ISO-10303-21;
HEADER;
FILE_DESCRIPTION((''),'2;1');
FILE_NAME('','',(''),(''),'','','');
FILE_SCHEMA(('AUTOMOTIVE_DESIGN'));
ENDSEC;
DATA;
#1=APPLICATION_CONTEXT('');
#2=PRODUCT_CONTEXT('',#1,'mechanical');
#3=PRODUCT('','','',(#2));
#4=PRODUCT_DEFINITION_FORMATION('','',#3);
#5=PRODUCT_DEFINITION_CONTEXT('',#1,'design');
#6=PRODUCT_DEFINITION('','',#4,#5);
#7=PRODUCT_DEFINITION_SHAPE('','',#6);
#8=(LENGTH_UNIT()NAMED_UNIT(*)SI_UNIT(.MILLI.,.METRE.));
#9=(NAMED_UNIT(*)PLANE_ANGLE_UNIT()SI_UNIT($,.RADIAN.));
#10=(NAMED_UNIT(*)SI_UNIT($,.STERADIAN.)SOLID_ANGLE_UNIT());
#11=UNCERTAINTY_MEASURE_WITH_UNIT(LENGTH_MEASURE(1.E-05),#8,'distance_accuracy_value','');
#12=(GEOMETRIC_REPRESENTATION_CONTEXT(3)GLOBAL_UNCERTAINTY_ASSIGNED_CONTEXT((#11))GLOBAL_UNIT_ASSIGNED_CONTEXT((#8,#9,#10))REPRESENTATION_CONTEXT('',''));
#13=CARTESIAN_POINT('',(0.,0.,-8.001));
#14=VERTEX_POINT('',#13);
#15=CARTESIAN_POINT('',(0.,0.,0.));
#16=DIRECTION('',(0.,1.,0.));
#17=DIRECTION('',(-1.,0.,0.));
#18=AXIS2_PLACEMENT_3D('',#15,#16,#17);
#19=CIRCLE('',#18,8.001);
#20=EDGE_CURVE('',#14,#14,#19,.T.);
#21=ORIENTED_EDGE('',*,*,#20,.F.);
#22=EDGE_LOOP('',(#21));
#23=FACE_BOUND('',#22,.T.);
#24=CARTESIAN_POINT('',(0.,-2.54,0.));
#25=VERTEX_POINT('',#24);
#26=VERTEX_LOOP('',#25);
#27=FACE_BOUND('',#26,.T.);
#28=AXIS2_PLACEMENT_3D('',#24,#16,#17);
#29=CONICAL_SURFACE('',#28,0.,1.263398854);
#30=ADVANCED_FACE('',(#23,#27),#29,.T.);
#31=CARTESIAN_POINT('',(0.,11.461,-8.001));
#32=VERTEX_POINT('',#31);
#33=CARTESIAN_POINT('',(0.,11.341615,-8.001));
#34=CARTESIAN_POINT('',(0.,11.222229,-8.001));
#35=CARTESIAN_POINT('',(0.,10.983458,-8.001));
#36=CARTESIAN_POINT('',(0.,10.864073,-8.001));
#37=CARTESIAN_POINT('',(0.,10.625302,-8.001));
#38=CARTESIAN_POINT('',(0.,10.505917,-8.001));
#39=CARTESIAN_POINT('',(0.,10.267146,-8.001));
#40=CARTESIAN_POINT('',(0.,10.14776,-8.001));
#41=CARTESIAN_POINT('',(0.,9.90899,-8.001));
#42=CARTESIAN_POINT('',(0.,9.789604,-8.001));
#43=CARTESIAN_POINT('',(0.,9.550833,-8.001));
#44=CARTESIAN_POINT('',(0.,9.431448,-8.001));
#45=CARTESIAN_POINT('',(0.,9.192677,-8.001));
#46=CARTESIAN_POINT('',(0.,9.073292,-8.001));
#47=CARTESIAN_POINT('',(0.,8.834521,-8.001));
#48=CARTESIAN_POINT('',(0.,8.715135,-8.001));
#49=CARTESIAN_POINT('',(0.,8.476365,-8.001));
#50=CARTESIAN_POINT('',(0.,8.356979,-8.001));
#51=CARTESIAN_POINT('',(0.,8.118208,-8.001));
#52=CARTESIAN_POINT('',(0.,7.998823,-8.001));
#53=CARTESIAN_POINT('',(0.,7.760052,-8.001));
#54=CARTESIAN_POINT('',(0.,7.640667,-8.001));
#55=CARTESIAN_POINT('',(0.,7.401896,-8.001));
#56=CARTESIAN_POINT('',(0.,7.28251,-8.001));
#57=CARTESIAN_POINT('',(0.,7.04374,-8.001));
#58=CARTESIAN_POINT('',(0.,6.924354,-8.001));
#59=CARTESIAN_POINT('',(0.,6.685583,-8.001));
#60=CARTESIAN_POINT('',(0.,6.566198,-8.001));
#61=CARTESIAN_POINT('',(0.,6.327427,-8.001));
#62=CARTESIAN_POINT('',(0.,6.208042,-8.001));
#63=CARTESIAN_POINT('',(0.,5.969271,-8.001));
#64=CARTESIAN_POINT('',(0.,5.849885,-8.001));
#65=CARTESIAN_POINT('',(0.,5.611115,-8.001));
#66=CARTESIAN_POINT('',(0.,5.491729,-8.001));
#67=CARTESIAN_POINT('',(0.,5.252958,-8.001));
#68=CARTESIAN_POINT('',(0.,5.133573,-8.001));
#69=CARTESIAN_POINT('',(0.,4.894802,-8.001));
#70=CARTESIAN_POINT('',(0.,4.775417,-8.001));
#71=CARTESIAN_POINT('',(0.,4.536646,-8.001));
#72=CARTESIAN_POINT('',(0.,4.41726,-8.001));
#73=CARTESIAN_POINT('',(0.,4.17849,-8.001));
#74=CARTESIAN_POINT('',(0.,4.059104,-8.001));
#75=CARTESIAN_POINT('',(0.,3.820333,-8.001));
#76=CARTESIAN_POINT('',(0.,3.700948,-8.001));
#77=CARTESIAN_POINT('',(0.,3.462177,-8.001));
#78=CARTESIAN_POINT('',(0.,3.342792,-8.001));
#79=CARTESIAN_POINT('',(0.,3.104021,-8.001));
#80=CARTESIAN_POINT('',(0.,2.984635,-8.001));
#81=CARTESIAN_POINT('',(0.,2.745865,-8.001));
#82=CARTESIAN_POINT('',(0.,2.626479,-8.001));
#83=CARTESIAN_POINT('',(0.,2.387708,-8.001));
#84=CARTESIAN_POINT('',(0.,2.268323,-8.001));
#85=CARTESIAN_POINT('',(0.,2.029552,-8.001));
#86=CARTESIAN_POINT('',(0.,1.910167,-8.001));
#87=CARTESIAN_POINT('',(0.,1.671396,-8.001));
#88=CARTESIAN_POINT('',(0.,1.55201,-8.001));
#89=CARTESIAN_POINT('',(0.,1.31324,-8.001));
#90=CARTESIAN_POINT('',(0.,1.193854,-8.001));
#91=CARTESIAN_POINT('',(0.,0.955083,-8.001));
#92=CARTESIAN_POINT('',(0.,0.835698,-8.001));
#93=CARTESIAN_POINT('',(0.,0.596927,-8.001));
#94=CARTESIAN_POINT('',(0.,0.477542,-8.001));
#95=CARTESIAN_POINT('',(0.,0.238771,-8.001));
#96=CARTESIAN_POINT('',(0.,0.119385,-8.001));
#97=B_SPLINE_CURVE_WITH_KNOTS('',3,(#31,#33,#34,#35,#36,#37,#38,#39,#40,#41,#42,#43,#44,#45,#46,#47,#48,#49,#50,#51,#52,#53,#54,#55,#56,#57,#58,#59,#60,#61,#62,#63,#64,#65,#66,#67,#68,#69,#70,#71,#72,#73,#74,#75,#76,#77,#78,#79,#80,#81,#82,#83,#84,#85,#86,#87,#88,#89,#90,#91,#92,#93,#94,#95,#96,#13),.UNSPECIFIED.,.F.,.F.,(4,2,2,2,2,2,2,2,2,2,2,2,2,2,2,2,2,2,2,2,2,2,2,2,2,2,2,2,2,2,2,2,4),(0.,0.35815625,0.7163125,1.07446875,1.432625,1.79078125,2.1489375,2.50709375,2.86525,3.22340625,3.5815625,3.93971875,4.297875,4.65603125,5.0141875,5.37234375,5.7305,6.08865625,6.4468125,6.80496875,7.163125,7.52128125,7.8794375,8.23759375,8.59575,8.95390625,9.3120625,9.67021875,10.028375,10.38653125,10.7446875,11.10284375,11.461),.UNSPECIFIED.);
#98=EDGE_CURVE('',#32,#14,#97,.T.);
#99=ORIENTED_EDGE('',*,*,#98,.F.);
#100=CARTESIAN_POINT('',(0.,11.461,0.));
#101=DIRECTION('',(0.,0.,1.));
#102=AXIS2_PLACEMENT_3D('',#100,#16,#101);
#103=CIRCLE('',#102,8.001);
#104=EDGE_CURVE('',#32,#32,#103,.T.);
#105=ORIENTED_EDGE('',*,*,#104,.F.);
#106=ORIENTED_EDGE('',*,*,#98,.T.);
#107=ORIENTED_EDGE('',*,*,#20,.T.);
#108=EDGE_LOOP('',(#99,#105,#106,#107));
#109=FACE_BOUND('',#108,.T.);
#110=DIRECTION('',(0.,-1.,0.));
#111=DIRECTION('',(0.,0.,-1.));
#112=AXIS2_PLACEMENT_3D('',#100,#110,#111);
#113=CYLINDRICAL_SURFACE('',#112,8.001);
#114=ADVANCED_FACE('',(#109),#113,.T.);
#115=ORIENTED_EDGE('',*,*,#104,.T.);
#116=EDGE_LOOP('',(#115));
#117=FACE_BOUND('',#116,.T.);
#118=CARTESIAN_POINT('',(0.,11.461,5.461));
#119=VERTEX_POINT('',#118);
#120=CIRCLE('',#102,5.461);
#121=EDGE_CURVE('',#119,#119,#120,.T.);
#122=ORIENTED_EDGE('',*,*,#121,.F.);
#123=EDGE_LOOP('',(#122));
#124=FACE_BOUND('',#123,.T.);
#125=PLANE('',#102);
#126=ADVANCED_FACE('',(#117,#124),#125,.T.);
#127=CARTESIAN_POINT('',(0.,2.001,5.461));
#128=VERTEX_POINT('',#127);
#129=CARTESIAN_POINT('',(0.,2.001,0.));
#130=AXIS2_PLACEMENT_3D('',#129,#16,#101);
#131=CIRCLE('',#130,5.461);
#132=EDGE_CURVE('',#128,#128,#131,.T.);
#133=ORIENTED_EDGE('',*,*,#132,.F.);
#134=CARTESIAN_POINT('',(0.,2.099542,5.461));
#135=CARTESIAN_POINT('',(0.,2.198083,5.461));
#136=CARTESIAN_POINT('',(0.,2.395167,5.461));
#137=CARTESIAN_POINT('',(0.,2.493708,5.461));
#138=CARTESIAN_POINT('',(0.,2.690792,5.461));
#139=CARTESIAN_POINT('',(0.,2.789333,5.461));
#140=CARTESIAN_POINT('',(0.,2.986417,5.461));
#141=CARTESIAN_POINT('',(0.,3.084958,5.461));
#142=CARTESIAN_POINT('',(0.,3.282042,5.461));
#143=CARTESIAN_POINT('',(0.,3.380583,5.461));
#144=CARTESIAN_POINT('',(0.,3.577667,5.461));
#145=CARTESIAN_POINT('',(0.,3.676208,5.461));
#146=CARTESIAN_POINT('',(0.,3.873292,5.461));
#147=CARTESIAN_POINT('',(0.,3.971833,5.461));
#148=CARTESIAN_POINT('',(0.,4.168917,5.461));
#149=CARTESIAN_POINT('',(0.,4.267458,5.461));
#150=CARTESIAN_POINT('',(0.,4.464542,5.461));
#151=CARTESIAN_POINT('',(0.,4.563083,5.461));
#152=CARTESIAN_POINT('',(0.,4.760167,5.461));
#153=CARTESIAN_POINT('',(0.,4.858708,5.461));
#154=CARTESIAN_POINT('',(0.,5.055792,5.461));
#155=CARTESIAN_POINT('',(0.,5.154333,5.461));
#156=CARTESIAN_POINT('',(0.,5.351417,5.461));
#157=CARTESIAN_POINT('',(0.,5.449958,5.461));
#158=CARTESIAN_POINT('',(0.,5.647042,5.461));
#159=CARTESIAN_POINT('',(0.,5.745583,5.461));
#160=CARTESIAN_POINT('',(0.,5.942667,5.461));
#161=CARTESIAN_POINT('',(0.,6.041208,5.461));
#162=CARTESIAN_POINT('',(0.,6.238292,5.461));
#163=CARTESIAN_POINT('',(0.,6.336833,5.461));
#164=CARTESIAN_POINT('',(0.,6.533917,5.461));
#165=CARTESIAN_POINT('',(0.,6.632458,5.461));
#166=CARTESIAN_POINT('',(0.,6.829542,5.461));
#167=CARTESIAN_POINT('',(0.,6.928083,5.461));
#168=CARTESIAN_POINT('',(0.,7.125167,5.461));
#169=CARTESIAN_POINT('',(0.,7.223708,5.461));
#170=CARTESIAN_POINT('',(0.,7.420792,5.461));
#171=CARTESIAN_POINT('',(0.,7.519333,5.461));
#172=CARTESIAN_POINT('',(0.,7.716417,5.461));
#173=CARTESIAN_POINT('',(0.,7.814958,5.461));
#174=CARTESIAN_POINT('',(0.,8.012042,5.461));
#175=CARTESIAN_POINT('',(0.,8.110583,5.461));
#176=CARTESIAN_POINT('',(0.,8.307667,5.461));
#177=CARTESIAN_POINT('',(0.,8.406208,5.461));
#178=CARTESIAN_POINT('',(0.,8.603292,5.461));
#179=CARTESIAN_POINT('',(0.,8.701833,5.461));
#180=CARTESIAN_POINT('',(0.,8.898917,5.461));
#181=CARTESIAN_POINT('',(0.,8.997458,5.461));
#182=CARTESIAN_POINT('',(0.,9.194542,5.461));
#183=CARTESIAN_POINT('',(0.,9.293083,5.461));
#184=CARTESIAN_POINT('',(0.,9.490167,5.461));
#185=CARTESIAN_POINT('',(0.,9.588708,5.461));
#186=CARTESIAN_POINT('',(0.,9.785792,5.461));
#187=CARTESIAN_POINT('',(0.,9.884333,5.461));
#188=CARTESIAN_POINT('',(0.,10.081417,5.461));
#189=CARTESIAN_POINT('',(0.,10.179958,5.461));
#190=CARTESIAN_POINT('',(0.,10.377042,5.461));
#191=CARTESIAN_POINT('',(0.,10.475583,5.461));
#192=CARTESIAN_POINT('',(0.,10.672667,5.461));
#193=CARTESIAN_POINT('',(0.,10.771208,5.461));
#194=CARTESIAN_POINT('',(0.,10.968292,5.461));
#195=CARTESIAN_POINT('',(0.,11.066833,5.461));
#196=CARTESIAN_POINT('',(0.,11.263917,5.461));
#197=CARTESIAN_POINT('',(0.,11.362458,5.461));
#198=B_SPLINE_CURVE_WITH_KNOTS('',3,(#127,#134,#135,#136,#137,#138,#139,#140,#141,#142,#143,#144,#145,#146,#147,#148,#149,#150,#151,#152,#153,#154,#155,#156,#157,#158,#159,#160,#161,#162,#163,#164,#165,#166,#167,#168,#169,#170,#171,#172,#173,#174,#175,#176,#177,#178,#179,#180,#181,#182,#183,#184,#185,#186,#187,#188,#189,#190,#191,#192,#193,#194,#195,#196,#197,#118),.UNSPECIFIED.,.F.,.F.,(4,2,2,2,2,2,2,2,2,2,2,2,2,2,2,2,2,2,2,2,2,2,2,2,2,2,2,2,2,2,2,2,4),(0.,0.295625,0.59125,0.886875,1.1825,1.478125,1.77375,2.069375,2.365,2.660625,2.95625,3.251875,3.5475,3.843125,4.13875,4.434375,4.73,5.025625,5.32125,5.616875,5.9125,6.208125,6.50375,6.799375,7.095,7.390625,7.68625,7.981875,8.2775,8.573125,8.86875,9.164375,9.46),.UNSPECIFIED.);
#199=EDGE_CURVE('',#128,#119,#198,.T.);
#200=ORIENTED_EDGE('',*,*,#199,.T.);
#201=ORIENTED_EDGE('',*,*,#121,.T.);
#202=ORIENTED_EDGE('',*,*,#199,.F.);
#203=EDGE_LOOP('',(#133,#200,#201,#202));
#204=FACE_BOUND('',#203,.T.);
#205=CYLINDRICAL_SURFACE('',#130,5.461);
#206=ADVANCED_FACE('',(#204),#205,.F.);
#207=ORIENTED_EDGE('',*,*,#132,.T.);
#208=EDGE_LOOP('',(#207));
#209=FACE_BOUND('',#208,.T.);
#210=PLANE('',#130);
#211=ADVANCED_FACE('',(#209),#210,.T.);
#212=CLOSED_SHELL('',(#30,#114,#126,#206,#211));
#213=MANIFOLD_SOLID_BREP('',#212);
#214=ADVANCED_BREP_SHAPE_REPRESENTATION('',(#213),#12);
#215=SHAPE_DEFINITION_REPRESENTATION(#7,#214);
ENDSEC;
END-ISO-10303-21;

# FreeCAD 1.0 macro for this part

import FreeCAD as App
import Part
import Sketcher

V = App.Vector
Q = App.Units.Quantity


def add_polygon(sketch, points):
    """Adds a closed chain of lines whose ends are joined by coincident constraints."""
    first, n = sketch.GeometryCount, len(points)
    for a, b in zip(points, points[1:] + points[:1]):
        sketch.addGeometry(Part.LineSegment(App.Vector(*a, 0), App.Vector(*b, 0)), False)
    for i in range(n):
        sketch.addConstraint(Sketcher.Constraint("Coincident", first + i, 2, first + (i + 1) % n, 1))

doc = App.newDocument("Part")
body = doc.addObject("PartDesign::Body", "Body")

# Sketch on XZ plane
sketch1 = body.newObject("Sketcher::SketchObject", "Sketch")
sketch1.AttachmentSupport = (doc.getObject("XZ_Plane"), [""])
sketch1.MapMode = "FlatFace"
sketch1.addGeometry(Part.Circle(V(0, 0, 0), V(0, 0, 1), 8), False)
sketch1.addConstraint([
    Sketcher.Constraint("Coincident", 0, 3, -1, 1),
    Sketcher.Constraint("Diameter", 0, Q("0.63 in")),
])
pad1 = body.newObject("PartDesign::Pad", "Pad")
pad1.Profile = sketch1
pad1.Length = 11.461
pad1.Reversed = True

# Sketch on XY plane
sketch2 = body.newObject("Sketcher::SketchObject", "Sketch001")
sketch2.AttachmentSupport = (doc.getObject("XY_Plane"), [""])
sketch2.MapMode = "FlatFace"
add_polygon(sketch2, [(0, 0), (0, -2.5), (8, 0)])  # lines 0-2
sketch2.addConstraint([
    Sketcher.Constraint("Vertical", 0),
    Sketcher.Constraint("Horizontal", 2),
    Sketcher.Constraint("Coincident", 2, 2, -1, 1),
    Sketcher.Constraint("DistanceY", 0, 2, 0, 1, Q("0.1 in")),
    Sketcher.Constraint("DistanceX", 2, 2, 2, 1, Q("0.315 in")),
])
revolution = body.newObject("PartDesign::Revolution", "Revolution")
revolution.Profile = sketch2
revolution.ReferenceAxis = (sketch2, ["V_Axis"])
revolution.Angle = 360

# Sketch on XZ plane
sketch3 = body.newObject("Sketcher::SketchObject", "Sketch002")
sketch3.AttachmentSupport = (doc.getObject("XZ_Plane"), [""])
sketch3.MapMode = "FlatFace"
sketch3.AttachmentOffset = App.Placement(V(0, 0, -11.461), App.Rotation())
sketch3.addGeometry(Part.Circle(V(0, 0, 0), V(0, 0, 1), 5), False)
sketch3.addConstraint([
    Sketcher.Constraint("Coincident", 0, 3, -1, 1),
    Sketcher.Constraint("Diameter", 0, Q("0.43 in")),
])
pocket1 = body.newObject("PartDesign::Pocket", "Pocket")
pocket1.Profile = sketch3
pocket1.Length = 9.46
pocket1.Reversed = True

doc.recompute()
